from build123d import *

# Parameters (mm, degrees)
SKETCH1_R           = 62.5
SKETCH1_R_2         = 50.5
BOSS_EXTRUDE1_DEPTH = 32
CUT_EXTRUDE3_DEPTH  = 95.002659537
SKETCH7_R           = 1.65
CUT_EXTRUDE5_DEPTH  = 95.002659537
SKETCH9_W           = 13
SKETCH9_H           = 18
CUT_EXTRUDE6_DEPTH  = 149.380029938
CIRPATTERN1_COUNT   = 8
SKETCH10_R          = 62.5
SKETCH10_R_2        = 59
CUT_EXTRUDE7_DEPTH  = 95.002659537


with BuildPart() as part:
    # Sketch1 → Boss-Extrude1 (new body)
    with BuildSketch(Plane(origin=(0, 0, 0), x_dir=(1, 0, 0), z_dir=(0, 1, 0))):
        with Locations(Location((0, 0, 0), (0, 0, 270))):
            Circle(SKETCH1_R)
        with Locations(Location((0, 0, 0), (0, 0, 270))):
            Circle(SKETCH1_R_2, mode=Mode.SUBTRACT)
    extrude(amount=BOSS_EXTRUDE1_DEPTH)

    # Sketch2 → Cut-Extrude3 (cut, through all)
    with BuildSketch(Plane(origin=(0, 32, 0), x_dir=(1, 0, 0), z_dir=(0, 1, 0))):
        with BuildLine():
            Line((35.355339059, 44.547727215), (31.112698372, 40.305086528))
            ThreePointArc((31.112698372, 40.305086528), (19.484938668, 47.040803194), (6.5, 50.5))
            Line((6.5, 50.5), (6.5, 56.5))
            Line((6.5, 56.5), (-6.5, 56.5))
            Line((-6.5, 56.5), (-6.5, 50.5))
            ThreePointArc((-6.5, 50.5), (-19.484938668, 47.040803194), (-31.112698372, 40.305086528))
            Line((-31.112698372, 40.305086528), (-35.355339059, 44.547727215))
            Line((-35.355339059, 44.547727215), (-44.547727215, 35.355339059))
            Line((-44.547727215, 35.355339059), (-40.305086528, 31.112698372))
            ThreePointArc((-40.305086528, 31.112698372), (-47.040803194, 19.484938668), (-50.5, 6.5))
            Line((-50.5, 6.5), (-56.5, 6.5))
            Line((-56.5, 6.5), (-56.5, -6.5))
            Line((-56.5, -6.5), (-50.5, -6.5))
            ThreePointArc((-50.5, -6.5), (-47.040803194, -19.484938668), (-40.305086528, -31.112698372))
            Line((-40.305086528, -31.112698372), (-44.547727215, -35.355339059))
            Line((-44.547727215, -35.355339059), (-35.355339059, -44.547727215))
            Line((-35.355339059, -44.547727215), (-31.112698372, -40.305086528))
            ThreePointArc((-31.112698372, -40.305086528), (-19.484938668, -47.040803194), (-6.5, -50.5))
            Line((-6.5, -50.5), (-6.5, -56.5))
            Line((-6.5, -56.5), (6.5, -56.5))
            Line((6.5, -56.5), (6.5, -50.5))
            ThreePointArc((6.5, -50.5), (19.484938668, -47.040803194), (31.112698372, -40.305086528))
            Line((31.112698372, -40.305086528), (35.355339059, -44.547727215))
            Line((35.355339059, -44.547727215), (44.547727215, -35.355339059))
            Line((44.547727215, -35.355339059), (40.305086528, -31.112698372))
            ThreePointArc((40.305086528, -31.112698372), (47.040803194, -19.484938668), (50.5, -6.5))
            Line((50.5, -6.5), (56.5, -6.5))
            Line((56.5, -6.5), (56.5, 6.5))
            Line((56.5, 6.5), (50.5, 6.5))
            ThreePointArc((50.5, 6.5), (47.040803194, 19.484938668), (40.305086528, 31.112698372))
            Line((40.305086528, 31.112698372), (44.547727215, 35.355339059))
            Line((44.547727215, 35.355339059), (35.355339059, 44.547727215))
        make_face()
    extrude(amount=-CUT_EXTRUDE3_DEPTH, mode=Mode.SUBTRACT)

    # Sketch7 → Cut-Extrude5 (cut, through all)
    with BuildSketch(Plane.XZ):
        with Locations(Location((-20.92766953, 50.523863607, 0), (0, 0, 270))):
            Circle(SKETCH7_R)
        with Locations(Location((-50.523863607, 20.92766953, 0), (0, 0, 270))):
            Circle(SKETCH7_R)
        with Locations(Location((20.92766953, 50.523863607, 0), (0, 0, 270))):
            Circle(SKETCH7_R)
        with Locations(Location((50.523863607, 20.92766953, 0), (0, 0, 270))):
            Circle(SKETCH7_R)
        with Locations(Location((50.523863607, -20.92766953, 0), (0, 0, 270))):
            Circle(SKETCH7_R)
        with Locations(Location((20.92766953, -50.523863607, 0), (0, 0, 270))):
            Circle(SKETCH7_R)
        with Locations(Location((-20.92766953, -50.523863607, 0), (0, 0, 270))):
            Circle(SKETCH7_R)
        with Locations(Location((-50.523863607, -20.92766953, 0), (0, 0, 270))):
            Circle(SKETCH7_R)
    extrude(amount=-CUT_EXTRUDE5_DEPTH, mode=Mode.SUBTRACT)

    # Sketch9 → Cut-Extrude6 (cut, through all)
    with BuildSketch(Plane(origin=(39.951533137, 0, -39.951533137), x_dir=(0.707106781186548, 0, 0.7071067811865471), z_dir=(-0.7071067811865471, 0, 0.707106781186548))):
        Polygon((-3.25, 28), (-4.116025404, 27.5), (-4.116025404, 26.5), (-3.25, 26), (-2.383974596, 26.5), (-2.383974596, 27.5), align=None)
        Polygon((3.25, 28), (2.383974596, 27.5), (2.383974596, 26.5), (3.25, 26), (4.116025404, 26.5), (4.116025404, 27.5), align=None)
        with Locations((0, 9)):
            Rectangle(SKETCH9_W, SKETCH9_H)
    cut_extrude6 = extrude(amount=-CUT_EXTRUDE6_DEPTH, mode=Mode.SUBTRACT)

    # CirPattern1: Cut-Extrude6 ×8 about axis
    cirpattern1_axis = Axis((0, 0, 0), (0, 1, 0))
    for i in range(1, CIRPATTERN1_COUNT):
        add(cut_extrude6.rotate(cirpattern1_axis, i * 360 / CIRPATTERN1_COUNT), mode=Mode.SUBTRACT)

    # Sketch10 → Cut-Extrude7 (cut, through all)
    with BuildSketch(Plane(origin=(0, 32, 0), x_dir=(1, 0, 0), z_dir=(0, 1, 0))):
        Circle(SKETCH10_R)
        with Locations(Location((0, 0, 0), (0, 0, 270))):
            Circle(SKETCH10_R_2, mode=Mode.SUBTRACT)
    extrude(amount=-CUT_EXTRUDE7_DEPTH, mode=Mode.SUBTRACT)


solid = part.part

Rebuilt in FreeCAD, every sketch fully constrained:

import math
import FreeCAD as App
import Part
import Sketcher

V = App.Vector
Q = App.Units.Quantity

doc = App.newDocument("Part")
body = doc.addObject("PartDesign::Body", "Body")

sketch1 = body.newObject("Sketcher::SketchObject", "Sketch")
sketch1.AttachmentSupport = (doc.getObject("XZ_Plane"), [""])
sketch1.MapMode = "FlatFace"
sketch1.addGeometry([
    Part.Circle(V(0, 0, 0), V(0, 0, 1), 62),
    Part.Circle(V(0, 0, 0), V(0, 0, 1), 50),
], False)
sketch1.addConstraint([
    Sketcher.Constraint("Coincident", 0, 3, -1, 1),
    Sketcher.Constraint("Coincident", 1, 3, -1, 1),
    Sketcher.Constraint("Diameter", 0, 125.0),
    Sketcher.Constraint("Diameter", 1, 101.0),
])
pad1 = body.newObject("PartDesign::Pad", "Pad")
pad1.Profile = sketch1
pad1.Length = 32
pad1.Reversed = True

sketch2 = body.newObject("Sketcher::SketchObject", "Sketch001")
sketch2.AttachmentSupport = (doc.getObject("XZ_Plane"), [""])
sketch2.MapMode = "FlatFace"
sketch2.AttachmentOffset = App.Placement(V(0, 0, -32), App.Rotation())
sketch2.addGeometry([
    Part.LineSegment(V(35, -45, 0), V(31, -40, 0)),
    Part.ArcOfCircle(Part.Circle(V(0, 0, 0), V(0, 0, 1), 51), math.radians(-83), math.radians(-52)),
    Part.LineSegment(V(6, -50, 0), V(6, -56, 0)),
    Part.LineSegment(V(6, -56, 0), V(-6, -56, 0)),
    Part.LineSegment(V(-6, -56, 0), V(-6, -50, 0)),
    Part.ArcOfCircle(Part.Circle(V(0, 0, 0), V(0, 0, 1), 51), math.radians(-128), math.radians(-97)),
    Part.LineSegment(V(-31, -40, 0), V(-35, -45, 0)),
    Part.LineSegment(V(-35, -45, 0), V(-45, -35, 0)),
    Part.LineSegment(V(-45, -35, 0), V(-40, -31, 0)),
    Part.ArcOfCircle(Part.Circle(V(0, 0, 0), V(0, 0, 1), 51), math.radians(-173), math.radians(-142)),
    Part.LineSegment(V(-50, -6, 0), V(-56, -6, 0)),
    Part.LineSegment(V(-56, -6, 0), V(-56, 6, 0)),
    Part.LineSegment(V(-56, 6, 0), V(-50, 6, 0)),
    Part.ArcOfCircle(Part.Circle(V(0, 0, 0), V(0, 0, 1), 51), math.radians(142), math.radians(173)),
    Part.LineSegment(V(-40, 31, 0), V(-45, 35, 0)),
    Part.LineSegment(V(-45, 35, 0), V(-35, 45, 0)),
    Part.LineSegment(V(-35, 45, 0), V(-31, 40, 0)),
    Part.ArcOfCircle(Part.Circle(V(0, 0, 0), V(0, 0, 1), 51), math.radians(97), math.radians(128)),
    Part.LineSegment(V(-6, 50, 0), V(-6, 56, 0)),
    Part.LineSegment(V(-6, 56, 0), V(6, 56, 0)),
    Part.LineSegment(V(6, 56, 0), V(6, 50, 0)),
    Part.ArcOfCircle(Part.Circle(V(0, 0, 0), V(0, 0, 1), 51), math.radians(52), math.radians(83)),
    Part.LineSegment(V(31, 40, 0), V(35, 45, 0)),
    Part.LineSegment(V(35, 45, 0), V(45, 35, 0)),
    Part.LineSegment(V(45, 35, 0), V(40, 31, 0)),
    Part.ArcOfCircle(Part.Circle(V(0, 0, 0), V(0, 0, 1), 51), math.radians(7), math.radians(38)),
    Part.LineSegment(V(50, 6, 0), V(56, 6, 0)),
    Part.LineSegment(V(56, 6, 0), V(56, -6, 0)),
    Part.LineSegment(V(56, -6, 0), V(50, -6, 0)),
    Part.ArcOfCircle(Part.Circle(V(0, 0, 0), V(0, 0, 1), 51), math.radians(-38), math.radians(-7)),
    Part.LineSegment(V(40, -31, 0), V(45, -35, 0)),
    Part.LineSegment(V(45, -35, 0), V(35, -45, 0)),
], False)
sketch2.addConstraint([
    Sketcher.Constraint("Coincident", 0, 2, 1, 2),
    Sketcher.Constraint("Coincident", 1, 1, 2, 1),
    Sketcher.Constraint("Coincident", 2, 2, 3, 1),
    Sketcher.Constraint("Coincident", 3, 2, 4, 1),
    Sketcher.Constraint("Coincident", 4, 2, 5, 2),
    Sketcher.Constraint("Coincident", 5, 1, 6, 1),
    Sketcher.Constraint("Coincident", 6, 2, 7, 1),
    Sketcher.Constraint("Coincident", 7, 2, 8, 1),
    Sketcher.Constraint("Coincident", 8, 2, 9, 2),
    Sketcher.Constraint("Coincident", 9, 1, 10, 1),
    Sketcher.Constraint("Coincident", 10, 2, 11, 1),
    Sketcher.Constraint("Coincident", 11, 2, 12, 1),
    Sketcher.Constraint("Coincident", 12, 2, 13, 2),
    Sketcher.Constraint("Coincident", 13, 1, 14, 1),
    Sketcher.Constraint("Coincident", 14, 2, 15, 1),
    Sketcher.Constraint("Coincident", 15, 2, 16, 1),
    Sketcher.Constraint("Coincident", 16, 2, 17, 2),
    Sketcher.Constraint("Coincident", 17, 1, 18, 1),
    Sketcher.Constraint("Coincident", 18, 2, 19, 1),
    Sketcher.Constraint("Coincident", 19, 2, 20, 1),
    Sketcher.Constraint("Coincident", 20, 2, 21, 2),
    Sketcher.Constraint("Coincident", 21, 1, 22, 1),
    Sketcher.Constraint("Coincident", 22, 2, 23, 1),
    Sketcher.Constraint("Coincident", 23, 2, 24, 1),
    Sketcher.Constraint("Coincident", 24, 2, 25, 2),
    Sketcher.Constraint("Coincident", 25, 1, 26, 1),
    Sketcher.Constraint("Coincident", 26, 2, 27, 1),
    Sketcher.Constraint("Coincident", 27, 2, 28, 1),
    Sketcher.Constraint("Coincident", 28, 2, 29, 2),
    Sketcher.Constraint("Coincident", 29, 1, 30, 1),
    Sketcher.Constraint("Coincident", 30, 2, 31, 1),
    Sketcher.Constraint("Coincident", 31, 2, 0, 1),
    Sketcher.Constraint("Vertical", 2),
    Sketcher.Constraint("Horizontal", 3),
    Sketcher.Constraint("Vertical", 4),
    Sketcher.Constraint("Horizontal", 10),
    Sketcher.Constraint("Vertical", 11),
    Sketcher.Constraint("Horizontal", 12),
    Sketcher.Constraint("Vertical", 18),
    Sketcher.Constraint("Horizontal", 19),
    Sketcher.Constraint("Vertical", 20),
    Sketcher.Constraint("Horizontal", 26),
    Sketcher.Constraint("Vertical", 27),
    Sketcher.Constraint("Horizontal", 28),
    Sketcher.Constraint("Coincident", 1, 3, -1, 1),
    Sketcher.Constraint("Coincident", 5, 3, -1, 1),
    Sketcher.Constraint("Coincident", 9, 3, -1, 1),
    Sketcher.Constraint("Coincident", 13, 3, -1, 1),
    Sketcher.Constraint("Coincident", 17, 3, -1, 1),
    Sketcher.Constraint("Coincident", 21, 3, -1, 1),
    Sketcher.Constraint("Coincident", 25, 3, -1, 1),
    Sketcher.Constraint("Coincident", 29, 3, -1, 1),
    Sketcher.Constraint("Equal", 1, 5),
    Sketcher.Constraint("Equal", 5, 9),
    Sketcher.Constraint("Equal", 9, 13),
    Sketcher.Constraint("Equal", 13, 17),
    Sketcher.Constraint("Equal", 17, 21),
    Sketcher.Constraint("Equal", 21, 25),
    Sketcher.Constraint("Equal", 25, 29),
    Sketcher.Constraint("Symmetric", 2, 2, 18, 2, -1, 1),
    Sketcher.Constraint("Symmetric", 6, 2, 22, 2, -1, 1),
    Sketcher.Constraint("Symmetric", 7, 2, 23, 2, -1, 1),
    Sketcher.Constraint("Symmetric", 10, 2, 26, 2, -1, 1),
    Sketcher.Constraint("Symmetric", 14, 2, 30, 2, -1, 1),
    Sketcher.Constraint("Symmetric", 15, 2, 31, 2, -1, 1),
    Sketcher.Constraint("Symmetric", 15, 2, 22, 2, -2),
    Sketcher.Constraint("Symmetric", 14, 2, 23, 2, -2),
    Sketcher.Constraint("Perpendicular", 0, 6),
    Sketcher.Constraint("Perpendicular", 6, 7),
    Sketcher.Constraint("Perpendicular", 7, 8),
    Sketcher.Constraint("Perpendicular", 8, 14),
    Sketcher.Constraint("Perpendicular", 14, 15),
    Sketcher.Constraint("Perpendicular", 15, 16),
    Sketcher.Constraint("Perpendicular", 16, 22),
    Sketcher.Constraint("Perpendicular", 23, 24),
    Sketcher.Constraint("Perpendicular", 24, 30),
    Sketcher.Constraint("Horizontal", 1, 1, 4, 2),
    Sketcher.Constraint("Horizontal", 17, 1, 20, 2),
    Sketcher.Constraint("Horizontal", 12, 2, 25, 1),
    Sketcher.Constraint("Horizontal", 10, 2, 27, 2),
    Sketcher.Constraint("Equal", 28, 2),
    Sketcher.Constraint("Equal", 19, 11),
    Sketcher.Constraint("Equal", 6, 8),
    Sketcher.Constraint("DistanceX", 3, 2, 3, 1, 13.0),
    Sketcher.Constraint("DistanceX", 10, 2, 10, 1, 6.0),
    Sketcher.Constraint("Distance", 0, 6.0),
    Sketcher.Constraint("Distance", 7, 13.0),
    Sketcher.Constraint("DistanceY", 1, 1, -1, 1, 50.5),
])
pocket1 = body.newObject("PartDesign::Pocket", "Pocket")
pocket1.Profile = sketch2
pocket1.Type = "ThroughAll"
pocket1.Reversed = True

sketch3 = body.newObject("Sketcher::SketchObject", "Sketch002")
sketch3.AttachmentSupport = (doc.getObject("XZ_Plane"), [""])
sketch3.MapMode = "FlatFace"
sketch3.addGeometry([
    Part.Circle(V(-20.9, 50.5, 0), V(0, 0, 1), 1.6),
    Part.Circle(V(-50.5, 20.9, 0), V(0, 0, 1), 1.6),
    Part.Circle(V(20.9, 50.5, 0), V(0, 0, 1), 1.6),
    Part.Circle(V(50.5, 20.9, 0), V(0, 0, 1), 1.6),
    Part.Circle(V(50.5, -20.9, 0), V(0, 0, 1), 1.6),
    Part.Circle(V(20.9, -50.5, 0), V(0, 0, 1), 1.6),
    Part.Circle(V(-20.9, -50.5, 0), V(0, 0, 1), 1.6),
    Part.Circle(V(-50.5, -20.9, 0), V(0, 0, 1), 1.6),
], False)
sketch3.addConstraint([
    Sketcher.Constraint("Equal", 0, 1),
    Sketcher.Constraint("Equal", 1, 2),
    Sketcher.Constraint("Equal", 2, 3),
    Sketcher.Constraint("Equal", 3, 4),
    Sketcher.Constraint("Equal", 4, 5),
    Sketcher.Constraint("Equal", 5, 6),
    Sketcher.Constraint("Equal", 6, 7),
    Sketcher.Constraint("Symmetric", 1, 3, 4, 3, -1, 1),
    Sketcher.Constraint("Symmetric", 0, 3, 5, 3, -1, 1),
    Sketcher.Constraint("Symmetric", 2, 3, 6, 3, -1, 1),
    Sketcher.Constraint("Symmetric", 3, 3, 7, 3, -1, 1),
    Sketcher.Constraint("Symmetric", 0, 3, 2, 3, -2),
    Sketcher.Constraint("Symmetric", 1, 3, 3, 3, -2),
    Sketcher.Constraint("Diameter", 0, 3.3),
    Sketcher.Constraint("DistanceX", 0, 3, -1, 1, 20.92767),
    Sketcher.Constraint("DistanceY", -1, 1, 1, 3, 20.92767),
    Sketcher.Constraint("DistanceY", -1, 1, 0, 3, 50.523864),
    Sketcher.Constraint("DistanceX", 1, 3, -1, 1, 50.523864),
])
pocket2 = body.newObject("PartDesign::Pocket", "Pocket001")
pocket2.Profile = sketch3
pocket2.Type = "ThroughAll"

sketch4 = body.newObject("Sketcher::SketchObject", "Sketch003")
sketch4.Placement = App.Placement(V(39.951533, 0, -39.951533), App.Rotation(V(0.707106781, 0, 0.707106781), V(0, 0.999999999, 0), V(-0.707106781, 0, 0.707106781), "ZXY"))
sketch4.addGeometry([
    Part.LineSegment(V(-3.2, 28, 0), V(-4.1, 27.5, 0)),
    Part.LineSegment(V(-4.1, 27.5, 0), V(-4.1, 26.5, 0)),
    Part.LineSegment(V(-4.1, 26.5, 0), V(-3.2, 26, 0)),
    Part.LineSegment(V(-3.2, 26, 0), V(-2.4, 26.5, 0)),
    Part.LineSegment(V(-2.4, 26.5, 0), V(-2.4, 27.5, 0)),
    Part.LineSegment(V(-2.4, 27.5, 0), V(-3.2, 28, 0)),
    Part.LineSegment(V(3.2, 28, 0), V(2.4, 27.5, 0)),
    Part.LineSegment(V(2.4, 27.5, 0), V(2.4, 26.5, 0)),
    Part.LineSegment(V(2.4, 26.5, 0), V(3.2, 26, 0)),
    Part.LineSegment(V(3.2, 26, 0), V(4.1, 26.5, 0)),
    Part.LineSegment(V(4.1, 26.5, 0), V(4.1, 27.5, 0)),
    Part.LineSegment(V(4.1, 27.5, 0), V(3.2, 28, 0)),
    Part.LineSegment(V(-6.5, 18, 0), V(-6.5, 0, 0)),
    Part.LineSegment(V(-6.5, 0, 0), V(6.5, 0, 0)),
    Part.LineSegment(V(6.5, 0, 0), V(6.5, 18, 0)),
    Part.LineSegment(V(6.5, 18, 0), V(-6.5, 18, 0)),
], False)
sketch4.addConstraint([
    Sketcher.Constraint("Coincident", 0, 2, 1, 1),
    Sketcher.Constraint("Coincident", 1, 2, 2, 1),
    Sketcher.Constraint("Coincident", 2, 2, 3, 1),
    Sketcher.Constraint("Coincident", 3, 2, 4, 1),
    Sketcher.Constraint("Coincident", 4, 2, 5, 1),
    Sketcher.Constraint("Coincident", 5, 2, 0, 1),
    Sketcher.Constraint("Coincident", 6, 2, 7, 1),
    Sketcher.Constraint("Coincident", 7, 2, 8, 1),
    Sketcher.Constraint("Coincident", 8, 2, 9, 1),
    Sketcher.Constraint("Coincident", 9, 2, 10, 1),
    Sketcher.Constraint("Coincident", 10, 2, 11, 1),
    Sketcher.Constraint("Coincident", 11, 2, 6, 1),
    Sketcher.Constraint("Coincident", 12, 2, 13, 1),
    Sketcher.Constraint("Coincident", 13, 2, 14, 1),
    Sketcher.Constraint("Coincident", 14, 2, 15, 1),
    Sketcher.Constraint("Coincident", 15, 2, 12, 1),
    Sketcher.Constraint("Vertical", 1),
    Sketcher.Constraint("Vertical", 4),
    Sketcher.Constraint("Vertical", 7),
    Sketcher.Constraint("Vertical", 10),
    Sketcher.Constraint("Vertical", 12),
    Sketcher.Constraint("Horizontal", 13),
    Sketcher.Constraint("Vertical", 14),
    Sketcher.Constraint("Horizontal", 15),
    Sketcher.Constraint("Symmetric", 12, 2, 13, 2, -1, 1),
    Sketcher.Constraint("Symmetric", 4, 2, 6, 2, -2),
    Sketcher.Constraint("Symmetric", 2, 2, 8, 2, -2),
    Sketcher.Constraint("Symmetric", 1, 2, 9, 2, -2),
    Sketcher.Constraint("Symmetric", 5, 2, 11, 2, -2),
    Sketcher.Constraint("Parallel", 0, 3),
    Sketcher.Constraint("Parallel", 2, 5),
    Sketcher.Constraint("Parallel", 3, 6),
    Sketcher.Constraint("Parallel", 5, 8),
    Sketcher.Constraint("Parallel", 8, 11),
    Sketcher.Constraint("Horizontal", 1, 2, 3, 2),
    Sketcher.Constraint("Horizontal", 0, 2, 4, 2),
    Sketcher.Constraint("DistanceX", 13, 1, 13, 2, 13.0),
    Sketcher.Constraint("DistanceY", 1, 2, 1, 1, 1.0),
    Sketcher.Constraint("DistanceY", 12, 2, 12, 1, 18.0),
    Sketcher.Constraint("Angle", 0, Q("-150 deg")),
    Sketcher.Constraint("Distance", 0, 1.0),
    Sketcher.Constraint("DistanceY", -1, 1, 2, 2, 26.0),
    Sketcher.Constraint("DistanceX", 0, 2, 6, 2, 6.5),
])
pocket3 = body.newObject("PartDesign::Pocket", "Pocket002")
pocket3.Profile = sketch4
pocket3.Type = "ThroughAll"
doc.recompute()

polarpattern = body.newObject("PartDesign::PolarPattern", "PolarPattern")
polarpattern.Originals = [pocket3]
polarpattern.Axis = (doc.getObject("Y_Axis"), [""])
polarpattern.Angle = 360
polarpattern.Occurrences = 8
body.Tip = polarpattern

sketch5 = body.newObject("Sketcher::SketchObject", "Sketch004")
sketch5.AttachmentSupport = (doc.getObject("XZ_Plane"), [""])
sketch5.MapMode = "FlatFace"
sketch5.AttachmentOffset = App.Placement(V(0, 0, -32), App.Rotation())
sketch5.addGeometry([
    Part.Circle(V(0, 0, 0), V(0, 0, 1), 62),
    Part.Circle(V(0, 0, 0), V(0, 0, 1), 59),
], False)
sketch5.addConstraint([
    Sketcher.Constraint("Coincident", 0, 3, -1, 1),
    Sketcher.Constraint("Coincident", 1, 3, -1, 1),
    Sketcher.Constraint("Diameter", 0, 125.0),
    Sketcher.Constraint("Diameter", 1, 118.0),
])
pocket4 = body.newObject("PartDesign::Pocket", "Pocket003")
pocket4.Profile = sketch5
pocket4.Type = "ThroughAll"
pocket4.Reversed = True

doc.recompute()
